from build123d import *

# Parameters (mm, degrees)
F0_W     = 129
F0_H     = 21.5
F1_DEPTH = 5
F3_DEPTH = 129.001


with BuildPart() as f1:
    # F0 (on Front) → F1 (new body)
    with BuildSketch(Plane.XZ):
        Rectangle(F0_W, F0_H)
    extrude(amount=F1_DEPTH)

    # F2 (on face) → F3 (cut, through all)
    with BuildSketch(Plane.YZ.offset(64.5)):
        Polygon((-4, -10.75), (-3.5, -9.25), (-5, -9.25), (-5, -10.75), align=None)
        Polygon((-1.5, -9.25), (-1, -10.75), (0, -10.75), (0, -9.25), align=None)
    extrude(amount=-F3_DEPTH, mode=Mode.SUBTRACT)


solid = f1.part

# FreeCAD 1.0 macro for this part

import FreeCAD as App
import Part
import Sketcher

V = App.Vector


def add_polygon(sketch, points):
    """Adds a closed chain of lines whose ends are joined by coincident constraints."""
    first, n = sketch.GeometryCount, len(points)
    for a, b in zip(points, points[1:] + points[:1]):
        sketch.addGeometry(Part.LineSegment(App.Vector(*a, 0), App.Vector(*b, 0)), False)
    for i in range(n):
        sketch.addConstraint(Sketcher.Constraint("Coincident", first + i, 2, first + (i + 1) % n, 1))

doc = App.newDocument("Part")
body = doc.addObject("PartDesign::Body", "Body")

# Sketch on XZ plane
sketch1 = body.newObject("Sketcher::SketchObject", "Sketch")
sketch1.AttachmentSupport = (doc.getObject("XZ_Plane"), [""])
sketch1.MapMode = "FlatFace"
add_polygon(sketch1, [(-64, 11), (-64, -11), (64, -11), (64, 11)])  # lines 0-3
sketch1.addConstraint(Sketcher.Constraint("Vertical", 0))
sketch1.addConstraint(Sketcher.Constraint("Horizontal", 1))
sketch1.addConstraint(Sketcher.Constraint("Vertical", 2))
sketch1.addConstraint(Sketcher.Constraint("Horizontal", 3))
sketch1.addConstraint(Sketcher.Constraint("Symmetric", 0, 2, 2, 2, -1, 1))
sketch1.addConstraint(Sketcher.Constraint("DistanceX", 1, 1, 1, 2, 129.0))
sketch1.addConstraint(Sketcher.Constraint("DistanceY", 0, 2, 0, 1, 21.5))
pad1 = body.newObject("PartDesign::Pad", "Pad")
pad1.Profile = sketch1
pad1.Length = 5

# Sketch on YZ plane
sketch2 = body.newObject("Sketcher::SketchObject", "Sketch001")
sketch2.AttachmentSupport = (doc.getObject("YZ_Plane"), [""])
sketch2.MapMode = "FlatFace"
sketch2.AttachmentOffset = App.Placement(V(0, 0, 64.5), App.Rotation())
add_polygon(sketch2, [(-4, -10.8), (-3.5, -9.2), (-5, -9.2), (-5, -10.8)])  # lines 0-3
add_polygon(sketch2, [(-1.5, -9.2), (-1, -10.8), (0, -10.8), (0, -9.2)])  # lines 4-7
sketch2.addConstraint(Sketcher.Constraint("Horizontal", 1))
sketch2.addConstraint(Sketcher.Constraint("Vertical", 2))
sketch2.addConstraint(Sketcher.Constraint("Horizontal", 3))
sketch2.addConstraint(Sketcher.Constraint("Horizontal", 5))
sketch2.addConstraint(Sketcher.Constraint("Vertical", 6))
sketch2.addConstraint(Sketcher.Constraint("Horizontal", 7))
sketch2.addConstraint(Sketcher.Constraint("PointOnObject", 5, 2, -2))
sketch2.addConstraint(Sketcher.Constraint("Horizontal", 3, 2, 4, 2))
sketch2.addConstraint(Sketcher.Constraint("Horizontal", 1, 2, 6, 2))
sketch2.addConstraint(Sketcher.Constraint("Equal", 3, 5))
sketch2.addConstraint(Sketcher.Constraint("Equal", 1, 7))
sketch2.addConstraint(Sketcher.Constraint("Equal", 7, 2))
sketch2.addConstraint(Sketcher.Constraint("DistanceX", 3, 1, 3, 2, 1.0))
sketch2.addConstraint(Sketcher.Constraint("DistanceX", 1, 2, 1, 1, 1.5))
sketch2.addConstraint(Sketcher.Constraint("DistanceX", 1, 2, -1, 1, 5.0))
sketch2.addConstraint(Sketcher.Constraint("DistanceY", 0, 2, -1, 1, 9.25))
pocket1 = body.newObject("PartDesign::Pocket", "Pocket")
pocket1.Profile = sketch2
pocket1.Type = "ThroughAll"

doc.recompute()
